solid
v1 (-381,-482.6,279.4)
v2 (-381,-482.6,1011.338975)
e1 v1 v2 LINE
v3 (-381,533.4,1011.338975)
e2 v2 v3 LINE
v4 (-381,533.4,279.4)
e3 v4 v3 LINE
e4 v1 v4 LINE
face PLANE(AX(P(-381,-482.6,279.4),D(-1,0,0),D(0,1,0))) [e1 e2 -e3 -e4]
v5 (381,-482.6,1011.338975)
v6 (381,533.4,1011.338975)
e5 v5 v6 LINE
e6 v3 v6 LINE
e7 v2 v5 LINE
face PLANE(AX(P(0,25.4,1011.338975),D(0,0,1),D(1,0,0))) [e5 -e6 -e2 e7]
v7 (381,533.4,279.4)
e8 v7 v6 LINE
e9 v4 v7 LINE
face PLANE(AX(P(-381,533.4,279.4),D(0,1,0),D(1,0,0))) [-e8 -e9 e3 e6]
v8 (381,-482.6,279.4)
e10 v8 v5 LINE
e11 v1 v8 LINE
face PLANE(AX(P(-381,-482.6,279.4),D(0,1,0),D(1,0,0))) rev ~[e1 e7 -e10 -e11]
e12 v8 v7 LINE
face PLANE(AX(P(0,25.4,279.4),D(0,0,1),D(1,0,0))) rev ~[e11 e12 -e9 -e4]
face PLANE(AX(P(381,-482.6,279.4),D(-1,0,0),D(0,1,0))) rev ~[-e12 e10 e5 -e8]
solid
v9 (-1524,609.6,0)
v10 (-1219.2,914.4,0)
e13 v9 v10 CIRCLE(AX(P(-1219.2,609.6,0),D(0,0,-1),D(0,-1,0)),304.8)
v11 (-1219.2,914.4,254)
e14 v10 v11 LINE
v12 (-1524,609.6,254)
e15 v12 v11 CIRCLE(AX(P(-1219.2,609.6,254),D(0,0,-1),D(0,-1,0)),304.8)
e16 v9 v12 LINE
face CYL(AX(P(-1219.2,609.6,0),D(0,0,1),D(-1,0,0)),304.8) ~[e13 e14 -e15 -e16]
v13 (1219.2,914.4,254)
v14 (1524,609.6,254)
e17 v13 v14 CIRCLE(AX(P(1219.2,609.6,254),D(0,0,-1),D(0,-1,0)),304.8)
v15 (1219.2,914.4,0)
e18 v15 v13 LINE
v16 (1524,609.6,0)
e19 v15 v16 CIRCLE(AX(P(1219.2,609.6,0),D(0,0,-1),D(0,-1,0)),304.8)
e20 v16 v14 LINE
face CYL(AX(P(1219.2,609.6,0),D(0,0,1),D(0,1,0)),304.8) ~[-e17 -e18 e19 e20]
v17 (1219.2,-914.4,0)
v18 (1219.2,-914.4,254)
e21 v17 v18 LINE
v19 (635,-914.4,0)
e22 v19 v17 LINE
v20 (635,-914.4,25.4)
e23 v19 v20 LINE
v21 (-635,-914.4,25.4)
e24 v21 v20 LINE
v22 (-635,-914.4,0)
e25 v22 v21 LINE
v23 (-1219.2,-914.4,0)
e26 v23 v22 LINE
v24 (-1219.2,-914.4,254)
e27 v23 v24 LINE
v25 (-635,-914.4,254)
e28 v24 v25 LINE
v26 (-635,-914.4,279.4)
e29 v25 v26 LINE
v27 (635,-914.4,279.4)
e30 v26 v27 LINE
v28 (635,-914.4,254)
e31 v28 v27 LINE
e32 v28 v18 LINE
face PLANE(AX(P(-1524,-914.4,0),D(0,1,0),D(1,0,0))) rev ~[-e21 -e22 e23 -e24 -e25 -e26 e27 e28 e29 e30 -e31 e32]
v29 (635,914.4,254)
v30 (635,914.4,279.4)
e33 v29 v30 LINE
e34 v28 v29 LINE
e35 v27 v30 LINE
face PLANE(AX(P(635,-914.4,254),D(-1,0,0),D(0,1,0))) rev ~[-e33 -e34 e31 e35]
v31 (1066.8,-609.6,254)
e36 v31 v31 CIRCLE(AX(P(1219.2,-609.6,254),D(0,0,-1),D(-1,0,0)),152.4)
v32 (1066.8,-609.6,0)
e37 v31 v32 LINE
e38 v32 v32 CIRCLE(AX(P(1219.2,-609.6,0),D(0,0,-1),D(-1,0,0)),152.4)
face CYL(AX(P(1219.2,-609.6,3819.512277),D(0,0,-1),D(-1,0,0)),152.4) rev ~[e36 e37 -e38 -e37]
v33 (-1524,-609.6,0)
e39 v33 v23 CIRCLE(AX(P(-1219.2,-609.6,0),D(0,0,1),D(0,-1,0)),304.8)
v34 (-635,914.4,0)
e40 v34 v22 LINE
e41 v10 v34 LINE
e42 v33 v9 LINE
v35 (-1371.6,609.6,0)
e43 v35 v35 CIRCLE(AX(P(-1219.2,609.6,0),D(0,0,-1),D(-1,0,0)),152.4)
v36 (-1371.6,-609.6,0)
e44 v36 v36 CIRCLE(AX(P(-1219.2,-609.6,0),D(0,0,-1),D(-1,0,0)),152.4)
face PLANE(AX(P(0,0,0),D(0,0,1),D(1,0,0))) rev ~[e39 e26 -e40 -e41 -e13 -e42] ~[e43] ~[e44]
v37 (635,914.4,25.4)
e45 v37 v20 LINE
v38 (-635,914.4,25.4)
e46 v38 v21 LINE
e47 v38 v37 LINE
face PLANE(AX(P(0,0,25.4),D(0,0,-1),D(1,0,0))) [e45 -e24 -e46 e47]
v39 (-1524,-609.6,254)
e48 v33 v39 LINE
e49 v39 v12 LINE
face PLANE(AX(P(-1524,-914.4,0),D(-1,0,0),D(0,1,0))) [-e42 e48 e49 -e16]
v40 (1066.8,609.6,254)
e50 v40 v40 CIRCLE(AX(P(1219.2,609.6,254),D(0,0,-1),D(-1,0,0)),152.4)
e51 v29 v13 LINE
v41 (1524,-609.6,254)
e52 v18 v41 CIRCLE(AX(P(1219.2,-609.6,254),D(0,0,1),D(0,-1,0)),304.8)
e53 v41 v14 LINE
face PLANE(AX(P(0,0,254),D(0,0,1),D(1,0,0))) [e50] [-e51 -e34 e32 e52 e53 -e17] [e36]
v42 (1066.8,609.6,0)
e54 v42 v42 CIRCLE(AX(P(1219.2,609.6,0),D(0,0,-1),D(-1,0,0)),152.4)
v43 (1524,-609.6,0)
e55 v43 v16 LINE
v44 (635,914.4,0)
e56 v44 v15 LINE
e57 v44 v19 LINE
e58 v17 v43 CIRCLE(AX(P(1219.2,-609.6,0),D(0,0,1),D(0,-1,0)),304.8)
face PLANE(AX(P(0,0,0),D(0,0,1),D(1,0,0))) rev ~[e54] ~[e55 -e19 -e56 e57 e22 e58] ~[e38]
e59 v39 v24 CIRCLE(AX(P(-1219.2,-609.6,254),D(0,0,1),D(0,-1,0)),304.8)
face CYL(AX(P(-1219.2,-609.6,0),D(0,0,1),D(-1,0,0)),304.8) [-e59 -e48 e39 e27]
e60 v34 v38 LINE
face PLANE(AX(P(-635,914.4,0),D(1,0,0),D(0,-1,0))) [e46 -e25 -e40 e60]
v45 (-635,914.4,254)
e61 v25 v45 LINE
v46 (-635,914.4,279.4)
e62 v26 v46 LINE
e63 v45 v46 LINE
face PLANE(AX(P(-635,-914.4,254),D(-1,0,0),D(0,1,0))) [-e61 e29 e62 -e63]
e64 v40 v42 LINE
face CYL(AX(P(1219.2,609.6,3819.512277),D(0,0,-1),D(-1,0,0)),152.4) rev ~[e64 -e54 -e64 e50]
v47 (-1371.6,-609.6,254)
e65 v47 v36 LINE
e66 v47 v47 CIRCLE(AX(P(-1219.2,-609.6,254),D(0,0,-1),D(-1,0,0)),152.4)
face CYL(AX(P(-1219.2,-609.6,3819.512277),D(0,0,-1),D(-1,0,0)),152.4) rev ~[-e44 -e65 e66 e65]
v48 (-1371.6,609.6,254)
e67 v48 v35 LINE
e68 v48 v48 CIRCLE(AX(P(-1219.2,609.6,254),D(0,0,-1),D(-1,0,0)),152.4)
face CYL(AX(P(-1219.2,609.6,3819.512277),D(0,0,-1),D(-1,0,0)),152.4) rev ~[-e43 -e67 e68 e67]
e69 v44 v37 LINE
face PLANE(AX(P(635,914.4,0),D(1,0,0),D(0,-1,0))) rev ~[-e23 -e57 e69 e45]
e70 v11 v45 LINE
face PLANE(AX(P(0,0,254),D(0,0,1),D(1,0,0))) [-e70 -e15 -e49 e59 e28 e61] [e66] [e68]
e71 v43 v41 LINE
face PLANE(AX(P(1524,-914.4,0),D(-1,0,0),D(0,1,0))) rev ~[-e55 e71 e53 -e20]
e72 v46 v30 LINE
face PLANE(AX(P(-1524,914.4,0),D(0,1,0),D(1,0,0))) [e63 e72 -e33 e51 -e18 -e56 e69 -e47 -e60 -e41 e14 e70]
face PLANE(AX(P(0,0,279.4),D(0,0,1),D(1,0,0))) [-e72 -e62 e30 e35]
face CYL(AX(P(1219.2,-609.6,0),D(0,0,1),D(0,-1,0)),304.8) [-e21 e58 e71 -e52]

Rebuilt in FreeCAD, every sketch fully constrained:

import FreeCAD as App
import Part
import Sketcher
Q = App.Units.Quantity


def edges_at(feature, points):
    """Names of the edges that pass closest to the given points."""
    edges = feature.Shape.Edges
    near = lambda p: min(range(len(edges)), key=lambda i: edges[i].distToShape(Part.Vertex(*p))[0])
    return sorted({f"Edge{near(p) + 1}" for p in points})

doc = App.newDocument("Part")
body = doc.addObject("PartDesign::Body", "Body")

# Sketch on XY plane
sketch1 = doc.addObject("Sketcher::SketchObject", "Sketch")
body.addObject(sketch1)
sketch1.AttachmentSupport = (doc.XY_Plane, [""])
sketch1.MapMode = "FlatFace"
sketch1.addGeometry([
    Part.LineSegment(App.Vector(-1524, 914, 0), App.Vector(-1524, -914, 0)),
    Part.LineSegment(App.Vector(-1524, -914, 0), App.Vector(1524, -914, 0)),
    Part.LineSegment(App.Vector(1524, -914, 0), App.Vector(1524, 914, 0)),
    Part.LineSegment(App.Vector(1524, 914, 0), App.Vector(-1524, 914, 0)),
], False)
sketch1.addConstraint([
    Sketcher.Constraint("Coincident", 0, 2, 1, 1),
    Sketcher.Constraint("Coincident", 1, 2, 2, 1),
    Sketcher.Constraint("Coincident", 2, 2, 3, 1),
    Sketcher.Constraint("Coincident", 3, 2, 0, 1),
    Sketcher.Constraint("Vertical", 0),
    Sketcher.Constraint("Horizontal", 1),
    Sketcher.Constraint("Vertical", 2),
    Sketcher.Constraint("Horizontal", 3),
    Sketcher.Constraint("Symmetric", 0, 2, 2, 2, -1, 1),
    Sketcher.Constraint("DistanceX", 1, 1, 1, 2, Q("120 in")),
    Sketcher.Constraint("DistanceY", 0, 2, 0, 1, Q("72 in")),
])
pad1 = doc.addObject("PartDesign::Pad", "Pad")
body.addObject(pad1)
pad1.Profile = sketch1
pad1.Length = Q("10 in")

# Sketch on XY plane
sketch2 = doc.addObject("Sketcher::SketchObject", "Sketch001")
body.addObject(sketch2)
sketch2.AttachmentSupport = (doc.XY_Plane, [""])
sketch2.MapMode = "FlatFace"
sketch2.AttachmentOffset = App.Placement(App.Vector(0, 0, 10 * 25.4), App.Rotation())
sketch2.addGeometry([
    Part.LineSegment(App.Vector(-635, 914, 0), App.Vector(-635, -914, 0)),
    Part.LineSegment(App.Vector(-635, -914, 0), App.Vector(635, -914, 0)),
    Part.LineSegment(App.Vector(635, -914, 0), App.Vector(635, 914, 0)),
    Part.LineSegment(App.Vector(635, 914, 0), App.Vector(-635, 914, 0)),
], False)
sketch2.addConstraint([
    Sketcher.Constraint("Coincident", 0, 2, 1, 1),
    Sketcher.Constraint("Coincident", 1, 2, 2, 1),
    Sketcher.Constraint("Coincident", 2, 2, 3, 1),
    Sketcher.Constraint("Coincident", 3, 2, 0, 1),
    Sketcher.Constraint("Vertical", 0),
    Sketcher.Constraint("Horizontal", 1),
    Sketcher.Constraint("Vertical", 2),
    Sketcher.Constraint("Horizontal", 3),
    Sketcher.Constraint("Symmetric", 0, 2, 2, 2, -1, 1),
    Sketcher.Constraint("DistanceX", 1, 1, 1, 2, Q("50 in")),
    Sketcher.Constraint("DistanceY", 0, 2, 0, 1, Q("72 in")),
])
pad2 = doc.addObject("PartDesign::Pad", "Pad001")
body.addObject(pad2)
pad2.Profile = sketch2
pad2.Length = Q("1 in")

# Sketch on XY plane
sketch3 = doc.addObject("Sketcher::SketchObject", "Sketch002")
body.addObject(sketch3)
sketch3.AttachmentSupport = (doc.XY_Plane, [""])
sketch3.MapMode = "FlatFace"
sketch3.addGeometry([
    Part.LineSegment(App.Vector(-635, -914, 0), App.Vector(-635, 914, 0)),
    Part.LineSegment(App.Vector(-635, 914, 0), App.Vector(635, 914, 0)),
    Part.LineSegment(App.Vector(635, 914, 0), App.Vector(635, -914, 0)),
    Part.LineSegment(App.Vector(635, -914, 0), App.Vector(-635, -914, 0)),
], False)
sketch3.addConstraint([
    Sketcher.Constraint("Coincident", 0, 2, 1, 1),
    Sketcher.Constraint("Coincident", 1, 2, 2, 1),
    Sketcher.Constraint("Coincident", 2, 2, 3, 1),
    Sketcher.Constraint("Coincident", 3, 2, 0, 1),
    Sketcher.Constraint("Vertical", 0),
    Sketcher.Constraint("Horizontal", 1),
    Sketcher.Constraint("Vertical", 2),
    Sketcher.Constraint("Horizontal", 3),
    Sketcher.Constraint("Symmetric", 0, 2, 2, 2, -1, 1),
    Sketcher.Constraint("DistanceX", 1, 1, 1, 2, Q("50 in")),
    Sketcher.Constraint("DistanceY", 0, 1, 0, 2, Q("72 in")),
])
pocket1 = doc.addObject("PartDesign::Pocket", "Pocket")
body.addObject(pocket1)
pocket1.Profile = sketch3
pocket1.Length = Q("1 in")
pocket1.Reversed = True
doc.recompute()

fillet = doc.addObject("PartDesign::Fillet", "Fillet")
body.addObject(fillet)
fillet.Base = (pocket1, edges_at(pocket1, [
    (1524, -914.4, 127),
    (1524, 914.4, 127),
    (-1524, -914.4, 127),
    (-1524, 914.4, 127),
]))
fillet.Radius = Q("12 in")

# Sketch on XY plane
sketch4 = doc.addObject("Sketcher::SketchObject", "Sketch003")
body.addObject(sketch4)
sketch4.AttachmentSupport = (doc.XY_Plane, [""])
sketch4.MapMode = "FlatFace"
sketch4.AttachmentOffset = App.Placement(App.Vector(0, 0, 10 * 25.4), App.Rotation())
sketch4.addGeometry([
    Part.Circle(App.Vector(-1219, 610, 0), App.Vector(0, 0, 1), 152),
    Part.Circle(App.Vector(-1219, -610, 0), App.Vector(0, 0, 1), 152),
    Part.Circle(App.Vector(1219, 610, 0), App.Vector(0, 0, 1), 152),
    Part.Circle(App.Vector(1219, -610, 0), App.Vector(0, 0, 1), 152),
], False)
sketch4.addConstraint([
    Sketcher.Constraint("Equal", 0, 1),
    Sketcher.Constraint("Equal", 1, 2),
    Sketcher.Constraint("Equal", 2, 3),
    Sketcher.Constraint("Symmetric", 1, 3, 2, 3, -1, 1),
    Sketcher.Constraint("Symmetric", 0, 3, 3, 3, -1, 1),
    Sketcher.Constraint("Symmetric", 0, 3, 2, 3, -2),
    Sketcher.Constraint("Diameter", 0, Q("12 in")),
    Sketcher.Constraint("DistanceX", 0, 3, -1, 1, Q("48 in")),
    Sketcher.Constraint("DistanceY", -1, 1, 0, 3, Q("24 in")),
])
doc.recompute()
hole = doc.addObject("PartDesign::Hole", "Hole")
body.addObject(hole)
hole.Profile = sketch4
hole.ThreadType = "None"
hole.Diameter = Q("12 in")
hole.DepthType = "ThroughAll"
body2 = doc.addObject("PartDesign::Body", "Body001")

# Sketch on XY plane
sketch5 = doc.addObject("Sketcher::SketchObject", "Sketch004")
body2.addObject(sketch5)
sketch5.AttachmentSupport = (doc.getObject("XY_Plane001"), [""])
sketch5.MapMode = "FlatFace"
sketch5.AttachmentOffset = App.Placement(App.Vector(0, 0, 11 * 25.4), App.Rotation())
sketch5.addGeometry([
    Part.LineSegment(App.Vector(-381, 533, 0), App.Vector(-381, -483, 0)),
    Part.LineSegment(App.Vector(-381, -483, 0), App.Vector(381, -483, 0)),
    Part.LineSegment(App.Vector(381, -483, 0), App.Vector(381, 533, 0)),
    Part.LineSegment(App.Vector(381, 533, 0), App.Vector(-381, 533, 0)),
], False)
sketch5.addConstraint([
    Sketcher.Constraint("Coincident", 0, 2, 1, 1),
    Sketcher.Constraint("Coincident", 1, 2, 2, 1),
    Sketcher.Constraint("Coincident", 2, 2, 3, 1),
    Sketcher.Constraint("Coincident", 3, 2, 0, 1),
    Sketcher.Constraint("Vertical", 0),
    Sketcher.Constraint("Horizontal", 1),
    Sketcher.Constraint("Vertical", 2),
    Sketcher.Constraint("Horizontal", 3),
    Sketcher.Constraint("DistanceX", 1, 1, 1, 2, Q("30 in")),
    Sketcher.Constraint("DistanceY", 0, 2, 0, 1, Q("40 in")),
    Sketcher.Constraint("DistanceX", 0, 2, -1, 1, Q("15 in")),
    Sketcher.Constraint("DistanceY", 0, 2, -1, 1, Q("19 in")),
])
pad3 = doc.addObject("PartDesign::Pad", "Pad002")
body2.addObject(pad3)
pad3.Profile = sketch5
pad3.Length = 731.938975

doc.recompute()
